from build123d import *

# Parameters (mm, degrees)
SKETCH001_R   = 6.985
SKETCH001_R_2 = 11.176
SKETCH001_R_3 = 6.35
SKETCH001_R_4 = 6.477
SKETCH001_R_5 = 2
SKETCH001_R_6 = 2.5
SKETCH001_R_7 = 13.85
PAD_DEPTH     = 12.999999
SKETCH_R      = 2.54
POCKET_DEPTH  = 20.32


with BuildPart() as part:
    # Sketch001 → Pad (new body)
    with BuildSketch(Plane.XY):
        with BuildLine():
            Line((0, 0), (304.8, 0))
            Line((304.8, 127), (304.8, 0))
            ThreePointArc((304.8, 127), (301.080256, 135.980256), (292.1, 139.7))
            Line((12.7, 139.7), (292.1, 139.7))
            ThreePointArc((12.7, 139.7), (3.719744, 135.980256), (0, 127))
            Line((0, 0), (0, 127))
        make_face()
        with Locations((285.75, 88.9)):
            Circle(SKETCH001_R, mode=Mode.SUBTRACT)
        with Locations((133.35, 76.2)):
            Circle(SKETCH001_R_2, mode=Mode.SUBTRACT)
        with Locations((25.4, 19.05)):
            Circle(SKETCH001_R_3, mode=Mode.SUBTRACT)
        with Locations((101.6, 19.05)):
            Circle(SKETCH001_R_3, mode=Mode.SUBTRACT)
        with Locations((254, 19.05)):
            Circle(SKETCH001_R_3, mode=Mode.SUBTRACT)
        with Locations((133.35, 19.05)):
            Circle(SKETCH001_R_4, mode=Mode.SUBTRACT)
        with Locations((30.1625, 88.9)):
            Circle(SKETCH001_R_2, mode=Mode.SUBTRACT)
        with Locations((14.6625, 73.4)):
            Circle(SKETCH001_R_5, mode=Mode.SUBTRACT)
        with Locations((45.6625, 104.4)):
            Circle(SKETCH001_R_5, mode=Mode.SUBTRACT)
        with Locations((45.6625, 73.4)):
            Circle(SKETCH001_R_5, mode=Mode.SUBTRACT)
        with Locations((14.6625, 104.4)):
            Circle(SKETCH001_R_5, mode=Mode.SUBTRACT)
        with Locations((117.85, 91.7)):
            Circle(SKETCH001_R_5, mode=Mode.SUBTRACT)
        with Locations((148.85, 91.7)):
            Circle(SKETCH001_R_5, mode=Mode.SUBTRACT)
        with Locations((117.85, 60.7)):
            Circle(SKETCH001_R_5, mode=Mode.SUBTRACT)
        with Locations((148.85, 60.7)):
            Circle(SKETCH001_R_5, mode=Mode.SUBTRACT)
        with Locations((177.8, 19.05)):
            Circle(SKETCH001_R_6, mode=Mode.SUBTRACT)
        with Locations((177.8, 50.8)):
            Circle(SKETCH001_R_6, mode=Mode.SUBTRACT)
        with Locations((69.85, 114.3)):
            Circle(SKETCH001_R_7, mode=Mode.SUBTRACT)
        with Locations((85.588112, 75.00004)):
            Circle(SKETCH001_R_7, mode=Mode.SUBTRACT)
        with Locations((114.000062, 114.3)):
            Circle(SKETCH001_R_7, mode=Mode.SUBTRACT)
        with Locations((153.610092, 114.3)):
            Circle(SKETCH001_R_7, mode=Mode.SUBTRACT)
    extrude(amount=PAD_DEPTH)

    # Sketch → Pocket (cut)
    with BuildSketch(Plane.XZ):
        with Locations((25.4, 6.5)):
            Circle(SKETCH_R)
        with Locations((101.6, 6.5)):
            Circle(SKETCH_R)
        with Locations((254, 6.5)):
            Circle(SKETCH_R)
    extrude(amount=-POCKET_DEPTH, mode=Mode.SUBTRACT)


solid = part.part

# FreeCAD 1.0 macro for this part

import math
import FreeCAD as App
import Part
import Sketcher
from FreeCAD import Vector
Q = App.Units.Quantity

doc = App.newDocument("Part")
body = doc.addObject("PartDesign::Body", "Body")

sketch1 = doc.addObject("Sketcher::SketchObject", "Sketch")
body.addObject(sketch1)
sketch1.AttachmentSupport = (doc.XY_Plane, [""])
sketch1.MapMode = "FlatFace"
sketch1.addGeometry(Part.LineSegment(Vector(0, 0, 0), Vector(304.8, 0, 0)), False)
sketch1.addGeometry(Part.LineSegment(Vector(304.8, 0, 0), Vector(304.8, 127, 0)), False)
sketch1.addGeometry(Part.ArcOfCircle(Part.Circle(Vector(292.1, 127, 0), Vector(0, 0, 1), 12.7), math.radians(0), math.radians(90)), False)
sketch1.addGeometry(Part.LineSegment(Vector(292.1, 139.7, 0), Vector(12.7, 139.7, 0)), False)
sketch1.addGeometry(Part.ArcOfCircle(Part.Circle(Vector(12.7, 127, 0), Vector(0, 0, 1), 12.7), math.radians(90), math.radians(180)), False)
sketch1.addGeometry(Part.LineSegment(Vector(0, 127, 0), Vector(0, 0, 0)), False)
sketch1.addGeometry(Part.Circle(Vector(25.4, 19.1, 0), Vector(0, 0, 1), 6.3), False)
sketch1.addGeometry(Part.Circle(Vector(101.6, 19.1, 0), Vector(0, 0, 1), 6.3), False)
sketch1.addGeometry(Part.Circle(Vector(133.3, 19.1, 0), Vector(0, 0, 1), 6.5), False)
sketch1.addGeometry(Part.Circle(Vector(117.8, 60.7, 0), Vector(0, 0, 1), 2), False)
sketch1.addGeometry(Part.Circle(Vector(148.8, 60.7, 0), Vector(0, 0, 1), 2), False)
sketch1.addGeometry(Part.Circle(Vector(177.8, 19.1, 0), Vector(0, 0, 1), 2.5), False)
sketch1.addGeometry(Part.Circle(Vector(254, 19.1, 0), Vector(0, 0, 1), 6.3), False)
sketch1.addGeometry(Part.Circle(Vector(177.8, 50.8, 0), Vector(0, 0, 1), 2.5), False)
sketch1.addGeometry(Part.Circle(Vector(14.7, 73.4, 0), Vector(0, 0, 1), 2), False)
sketch1.addGeometry(Part.Circle(Vector(45.7, 73.4, 0), Vector(0, 0, 1), 2), False)
sketch1.addGeometry(Part.Circle(Vector(30.2, 88.9, 0), Vector(0, 0, 1), 11.2), False)
sketch1.addGeometry(Part.Circle(Vector(85.6, 75, 0), Vector(0, 0, 1), 13.8), False)
sketch1.addGeometry(Part.Circle(Vector(133.3, 76.2, 0), Vector(0, 0, 1), 11.2), False)
sketch1.addGeometry(Part.Circle(Vector(117.8, 91.7, 0), Vector(0, 0, 1), 2), False)
sketch1.addGeometry(Part.Circle(Vector(148.8, 91.7, 0), Vector(0, 0, 1), 2), False)
sketch1.addGeometry(Part.Circle(Vector(14.7, 104.4, 0), Vector(0, 0, 1), 2), False)
sketch1.addGeometry(Part.Circle(Vector(45.7, 104.4, 0), Vector(0, 0, 1), 2), False)
sketch1.addGeometry(Part.Circle(Vector(69.8, 114.3, 0), Vector(0, 0, 1), 13.8), False)
sketch1.addGeometry(Part.Circle(Vector(114, 114.3, 0), Vector(0, 0, 1), 13.8), False)
sketch1.addGeometry(Part.Circle(Vector(285.8, 88.9, 0), Vector(0, 0, 1), 7), False)
sketch1.addGeometry(Part.Circle(Vector(153.6, 114.3, 0), Vector(0, 0, 1), 13.8), False)
sketch1.addConstraint(Sketcher.Constraint("Coincident", 0, 2, 1, 1))
sketch1.addConstraint(Sketcher.Constraint("Tangent", 1, 2, 2, 1))
sketch1.addConstraint(Sketcher.Constraint("Tangent", 2, 2, 3, 1))
sketch1.addConstraint(Sketcher.Constraint("Tangent", 3, 2, 4, 1))
sketch1.addConstraint(Sketcher.Constraint("Tangent", 4, 2, 5, 1))
sketch1.addConstraint(Sketcher.Constraint("Coincident", 5, 2, 0, 1))
sketch1.addConstraint(Sketcher.Constraint("Horizontal", 0))
sketch1.addConstraint(Sketcher.Constraint("Vertical", 1))
sketch1.addConstraint(Sketcher.Constraint("Horizontal", 3))
sketch1.addConstraint(Sketcher.Constraint("Vertical", 5))
sketch1.addConstraint(Sketcher.Constraint("Coincident", 5, 2, -1, 1))
sketch1.addConstraint(Sketcher.Constraint("Equal", 2, 4))
sketch1.addConstraint(Sketcher.Constraint("Equal", 6, 7))
sketch1.addConstraint(Sketcher.Constraint("Equal", 9, 10))
sketch1.addConstraint(Sketcher.Constraint("Equal", 7, 12))
sketch1.addConstraint(Sketcher.Constraint("Equal", 11, 13))
sketch1.addConstraint(Sketcher.Constraint("Equal", 10, 14))
sketch1.addConstraint(Sketcher.Constraint("Equal", 14, 15))
sketch1.addConstraint(Sketcher.Constraint("Equal", 16, 18))
sketch1.addConstraint(Sketcher.Constraint("Equal", 15, 19))
sketch1.addConstraint(Sketcher.Constraint("Equal", 19, 20))
sketch1.addConstraint(Sketcher.Constraint("Equal", 20, 21))
sketch1.addConstraint(Sketcher.Constraint("Equal", 21, 22))
sketch1.addConstraint(Sketcher.Constraint("Equal", 17, 23))
sketch1.addConstraint(Sketcher.Constraint("Equal", 23, 24))
sketch1.addConstraint(Sketcher.Constraint("Equal", 24, 26))
sketch1.addConstraint(Sketcher.Constraint("Horizontal", 6, 3, 7, 3))
sketch1.addConstraint(Sketcher.Constraint("Horizontal", 7, 3, 8, 3))
sketch1.addConstraint(Sketcher.Constraint("Horizontal", 9, 3, 10, 3))
sketch1.addConstraint(Sketcher.Constraint("Horizontal", 8, 3, 11, 3))
sketch1.addConstraint(Sketcher.Constraint("Horizontal", 11, 3, 12, 3))
sketch1.addConstraint(Sketcher.Constraint("Horizontal", 14, 3, 15, 3))
sketch1.addConstraint(Sketcher.Constraint("Horizontal", 19, 3, 20, 3))
sketch1.addConstraint(Sketcher.Constraint("Horizontal", 21, 3, 22, 3))
sketch1.addConstraint(Sketcher.Constraint("Horizontal", 23, 3, 24, 3))
sketch1.addConstraint(Sketcher.Constraint("Horizontal", 16, 3, 25, 3))
sketch1.addConstraint(Sketcher.Constraint("Horizontal", 24, 3, 26, 3))
sketch1.addConstraint(Sketcher.Constraint("Vertical", 11, 3, 13, 3))
sketch1.addConstraint(Sketcher.Constraint("Vertical", 8, 3, 18, 3))
sketch1.addConstraint(Sketcher.Constraint("Vertical", 9, 3, 19, 3))
sketch1.addConstraint(Sketcher.Constraint("Vertical", 10, 3, 20, 3))
sketch1.addConstraint(Sketcher.Constraint("Vertical", 14, 3, 21, 3))
sketch1.addConstraint(Sketcher.Constraint("Vertical", 15, 3, 22, 3))
sketch1.addConstraint(Sketcher.Constraint("Diameter", 6, Q("0.5 in")))
sketch1.addConstraint(Sketcher.Constraint("Radius", 2, Q("0.5 in")))
sketch1.addConstraint(Sketcher.Constraint("Diameter", 8, Q("0.51 in")))
sketch1.addConstraint(Sketcher.Constraint("Diameter", 16, Q("0.88 in")))
sketch1.addConstraint(Sketcher.Constraint("Diameter", 25, Q("0.55 in")))
sketch1.addConstraint(Sketcher.Constraint("DistanceX", 0, 1, 0, 2, Q("12 in")))
sketch1.addConstraint(Sketcher.Constraint("DistanceY", 1, 1, 1, 2, Q("5 in")))
sketch1.addConstraint(Sketcher.Constraint("DistanceX", -1, 1, 6, 3, Q("1 in")))
sketch1.addConstraint(Sketcher.Constraint("DistanceX", -1, 1, 7, 3, Q("4 in")))
sketch1.addConstraint(Sketcher.Constraint("DistanceX", -1, 1, 11, 3, Q("7 in")))
sketch1.addConstraint(Sketcher.Constraint("DistanceX", -1, 1, 12, 3, Q("10 in")))
sketch1.addConstraint(Sketcher.Constraint("DistanceY", -1, 1, 13, 3, Q("2 in")))
sketch1.addConstraint(Sketcher.Constraint("DistanceY", -1, 1, 18, 3, Q("3 in")))
sketch1.addConstraint(Sketcher.Constraint("DistanceY", 16, 3, 23, 3, Q("1 in")))
sketch1.addConstraint(Sketcher.Constraint("DistanceY", 25, 3, 2, 2, Q("2 in")))
sketch1.addConstraint(Sketcher.Constraint("DistanceY", 9, 3, 14, 3, Q("0.5 in")))
sketch1.addConstraint(Sketcher.Constraint("Diameter", 9, 4.0))
sketch1.addConstraint(Sketcher.Constraint("Diameter", 11, 5.0))
sketch1.addConstraint(Sketcher.Constraint("Diameter", 17, 27.7))
sketch1.addConstraint(Sketcher.Constraint("DistanceY", -1, 1, 6, 3, Q("0.75 in")))
sketch1.addConstraint(Sketcher.Constraint("DistanceX", -1, 1, 8, 3, Q("5.25 in")))
sketch1.addConstraint(Sketcher.Constraint("DistanceX", -1, 1, 23, 3, Q("2.75 in")))
sketch1.addConstraint(Sketcher.Constraint("DistanceX", -1, 1, 25, 3, Q("11.25 in")))
sketch1.addConstraint(Sketcher.Constraint("DistanceX", -1, 1, 16, 3, Q("1.1875 in")))
sketch1.addConstraint(Sketcher.Constraint("DistanceX", 14, 3, 9, 3, Q("4.0625 in")))
sketch1.addConstraint(Sketcher.Constraint("DistanceX", -1, 1, 9, 3, 117.85))
sketch1.addConstraint(Sketcher.Constraint("DistanceY", -1, 1, 9, 3, 60.7))
sketch1.addConstraint(Sketcher.Constraint("DistanceX", -1, 1, 10, 3, 148.85))
sketch1.addConstraint(Sketcher.Constraint("DistanceX", -1, 1, 15, 3, 45.6625))
sketch1.addConstraint(Sketcher.Constraint("DistanceY", -1, 1, 19, 3, 91.7))
sketch1.addConstraint(Sketcher.Constraint("DistanceY", -1, 1, 21, 3, 104.4))
sketch1.addConstraint(Sketcher.Constraint("DistanceX", -1, 1, 17, 3, 85.588112))
sketch1.addConstraint(Sketcher.Constraint("DistanceY", -1, 1, 17, 3, 75.00004))
sketch1.addConstraint(Sketcher.Constraint("DistanceX", -1, 1, 24, 3, 114.000062))
sketch1.addConstraint(Sketcher.Constraint("DistanceX", -1, 1, 26, 3, 153.610092))
pad1 = doc.addObject("PartDesign::Pad", "Pad")
body.addObject(pad1)
pad1.Profile = sketch1
pad1.Length = 12.999999

sketch2 = doc.addObject("Sketcher::SketchObject", "Sketch001")
body.addObject(sketch2)
sketch2.AttachmentSupport = (doc.XZ_Plane, [""])
sketch2.MapMode = "FlatFace"
sketch2.addGeometry(Part.Circle(Vector(25.4, 6.5, 0), Vector(0, 0, 1), 2.5), False)
sketch2.addGeometry(Part.Circle(Vector(101.6, 6.5, 0), Vector(0, 0, 1), 2.5), False)
sketch2.addGeometry(Part.Circle(Vector(254, 6.5, 0), Vector(0, 0, 1), 2.5), False)
sketch2.addConstraint(Sketcher.Constraint("Equal", 0, 1))
sketch2.addConstraint(Sketcher.Constraint("Equal", 1, 2))
sketch2.addConstraint(Sketcher.Constraint("Horizontal", 0, 3, 1, 3))
sketch2.addConstraint(Sketcher.Constraint("Horizontal", 1, 3, 2, 3))
sketch2.addConstraint(Sketcher.Constraint("Diameter", 0, Q("0.2 in")))
sketch2.addConstraint(Sketcher.Constraint("DistanceX", -1, 1, 0, 3, Q("1 in")))
sketch2.addConstraint(Sketcher.Constraint("DistanceX", -1, 1, 1, 3, Q("4 in")))
sketch2.addConstraint(Sketcher.Constraint("DistanceX", -1, 1, 2, 3, Q("10 in")))
sketch2.addConstraint(Sketcher.Constraint("DistanceY", -1, 1, 0, 3, 6.5))
pocket1 = doc.addObject("PartDesign::Pocket", "Pocket")
body.addObject(pocket1)
pocket1.Profile = sketch2
pocket1.Length = Q("0.8 in")

doc.recompute()
